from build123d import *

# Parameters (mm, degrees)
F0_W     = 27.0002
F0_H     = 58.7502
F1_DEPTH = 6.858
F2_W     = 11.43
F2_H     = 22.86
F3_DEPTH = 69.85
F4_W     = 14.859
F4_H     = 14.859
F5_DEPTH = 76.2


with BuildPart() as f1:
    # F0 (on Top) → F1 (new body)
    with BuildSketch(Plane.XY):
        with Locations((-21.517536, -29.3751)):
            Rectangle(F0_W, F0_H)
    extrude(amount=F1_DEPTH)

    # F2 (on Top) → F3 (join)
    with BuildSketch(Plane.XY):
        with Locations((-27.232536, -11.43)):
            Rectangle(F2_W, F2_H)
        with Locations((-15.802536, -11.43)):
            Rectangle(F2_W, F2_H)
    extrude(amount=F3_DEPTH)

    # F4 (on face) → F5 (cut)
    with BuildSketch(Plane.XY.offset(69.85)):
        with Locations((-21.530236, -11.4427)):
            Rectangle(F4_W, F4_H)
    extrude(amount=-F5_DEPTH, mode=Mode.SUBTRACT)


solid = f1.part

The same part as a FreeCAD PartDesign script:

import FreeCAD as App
import Part
import Sketcher
from FreeCAD import Vector
Q = App.Units.Quantity


def add_polygon(sketch, points):
    """Adds a closed chain of lines whose ends are joined by coincident constraints."""
    first, n = sketch.GeometryCount, len(points)
    for a, b in zip(points, points[1:] + points[:1]):
        sketch.addGeometry(Part.LineSegment(App.Vector(*a, 0), App.Vector(*b, 0)), False)
    for i in range(n):
        sketch.addConstraint(Sketcher.Constraint("Coincident", first + i, 2, first + (i + 1) % n, 1))

doc = App.newDocument("Part")
body = doc.addObject("PartDesign::Body", "Body")

# Sketch on XY plane
sketch1 = body.newObject("Sketcher::SketchObject", "Sketch")
sketch1.AttachmentSupport = (doc.getObject("XY_Plane"), [""])
sketch1.MapMode = "FlatFace"
add_polygon(sketch1, [(-35, 0), (-35, -59), (-8, -59), (-8, 0)])  # lines 0-3
sketch1.addConstraint(Sketcher.Constraint("Vertical", 0))
sketch1.addConstraint(Sketcher.Constraint("Horizontal", 1))
sketch1.addConstraint(Sketcher.Constraint("Vertical", 2))
sketch1.addConstraint(Sketcher.Constraint("Horizontal", 3))
sketch1.addConstraint(Sketcher.Constraint("PointOnObject", 2, 2, -1))
sketch1.addConstraint(Sketcher.Constraint("DistanceX", 1, 1, 1, 2, Q("1.063 in")))
sketch1.addConstraint(Sketcher.Constraint("DistanceY", 0, 2, 0, 1, Q("2.313 in")))
sketch1.addConstraint(Sketcher.Constraint("DistanceX", 0, 2, -1, 1, Q("35.017636 mm")))
pad1 = body.newObject("PartDesign::Pad", "Pad")
pad1.Profile = sketch1
pad1.Length = Q("0.27 in")

# Sketch on XY plane
sketch2 = body.newObject("Sketcher::SketchObject", "Sketch001")
sketch2.AttachmentSupport = (doc.getObject("XY_Plane"), [""])
sketch2.MapMode = "FlatFace"
add_polygon(sketch2, [(-33, 0), (-33, -23), (-10, -23), (-10, 0)])  # lines 0-3
sketch2.addConstraint(Sketcher.Constraint("Vertical", 0))
sketch2.addConstraint(Sketcher.Constraint("Horizontal", 1))
sketch2.addConstraint(Sketcher.Constraint("Vertical", 2))
sketch2.addConstraint(Sketcher.Constraint("Horizontal", 3))
sketch2.addConstraint(Sketcher.Constraint("PointOnObject", 2, 2, -1))
sketch2.addConstraint(Sketcher.Constraint("Equal", 3, 0))
sketch2.addConstraint(Sketcher.Constraint("DistanceX", 1, 1, 1, 2, Q("0.9 in")))
sketch2.addConstraint(Sketcher.Constraint("DistanceX", 0, 2, -1, 1, Q("32.947536 mm")))
pad2 = body.newObject("PartDesign::Pad", "Pad001")
pad2.Profile = sketch2
pad2.Length = Q("2.75 in")

# Sketch on XY plane
sketch3 = body.newObject("Sketcher::SketchObject", "Sketch002")
sketch3.AttachmentSupport = (doc.getObject("XY_Plane"), [""])
sketch3.MapMode = "FlatFace"
sketch3.AttachmentOffset = App.Placement(Vector(0, 0, 2.75 * 25.4), App.Rotation())
add_polygon(sketch3, [(-29, -4), (-29, -19), (-14, -19), (-14, -4)])  # lines 0-3
sketch3.addConstraint(Sketcher.Constraint("Vertical", 0))
sketch3.addConstraint(Sketcher.Constraint("Horizontal", 1))
sketch3.addConstraint(Sketcher.Constraint("Vertical", 2))
sketch3.addConstraint(Sketcher.Constraint("Horizontal", 3))
sketch3.addConstraint(Sketcher.Constraint("Equal", 3, 0))
sketch3.addConstraint(Sketcher.Constraint("DistanceX", 1, 1, 1, 2, Q("0.585 in")))
sketch3.addConstraint(Sketcher.Constraint("DistanceY", 0, 2, -1, 1, Q("0.743 in")))
sketch3.addConstraint(Sketcher.Constraint("DistanceX", 0, 2, -1, 1, Q("28.959736 mm")))
pocket1 = body.newObject("PartDesign::Pocket", "Pocket")
pocket1.Profile = sketch3
pocket1.Length = Q("3 in")

doc.recompute()
